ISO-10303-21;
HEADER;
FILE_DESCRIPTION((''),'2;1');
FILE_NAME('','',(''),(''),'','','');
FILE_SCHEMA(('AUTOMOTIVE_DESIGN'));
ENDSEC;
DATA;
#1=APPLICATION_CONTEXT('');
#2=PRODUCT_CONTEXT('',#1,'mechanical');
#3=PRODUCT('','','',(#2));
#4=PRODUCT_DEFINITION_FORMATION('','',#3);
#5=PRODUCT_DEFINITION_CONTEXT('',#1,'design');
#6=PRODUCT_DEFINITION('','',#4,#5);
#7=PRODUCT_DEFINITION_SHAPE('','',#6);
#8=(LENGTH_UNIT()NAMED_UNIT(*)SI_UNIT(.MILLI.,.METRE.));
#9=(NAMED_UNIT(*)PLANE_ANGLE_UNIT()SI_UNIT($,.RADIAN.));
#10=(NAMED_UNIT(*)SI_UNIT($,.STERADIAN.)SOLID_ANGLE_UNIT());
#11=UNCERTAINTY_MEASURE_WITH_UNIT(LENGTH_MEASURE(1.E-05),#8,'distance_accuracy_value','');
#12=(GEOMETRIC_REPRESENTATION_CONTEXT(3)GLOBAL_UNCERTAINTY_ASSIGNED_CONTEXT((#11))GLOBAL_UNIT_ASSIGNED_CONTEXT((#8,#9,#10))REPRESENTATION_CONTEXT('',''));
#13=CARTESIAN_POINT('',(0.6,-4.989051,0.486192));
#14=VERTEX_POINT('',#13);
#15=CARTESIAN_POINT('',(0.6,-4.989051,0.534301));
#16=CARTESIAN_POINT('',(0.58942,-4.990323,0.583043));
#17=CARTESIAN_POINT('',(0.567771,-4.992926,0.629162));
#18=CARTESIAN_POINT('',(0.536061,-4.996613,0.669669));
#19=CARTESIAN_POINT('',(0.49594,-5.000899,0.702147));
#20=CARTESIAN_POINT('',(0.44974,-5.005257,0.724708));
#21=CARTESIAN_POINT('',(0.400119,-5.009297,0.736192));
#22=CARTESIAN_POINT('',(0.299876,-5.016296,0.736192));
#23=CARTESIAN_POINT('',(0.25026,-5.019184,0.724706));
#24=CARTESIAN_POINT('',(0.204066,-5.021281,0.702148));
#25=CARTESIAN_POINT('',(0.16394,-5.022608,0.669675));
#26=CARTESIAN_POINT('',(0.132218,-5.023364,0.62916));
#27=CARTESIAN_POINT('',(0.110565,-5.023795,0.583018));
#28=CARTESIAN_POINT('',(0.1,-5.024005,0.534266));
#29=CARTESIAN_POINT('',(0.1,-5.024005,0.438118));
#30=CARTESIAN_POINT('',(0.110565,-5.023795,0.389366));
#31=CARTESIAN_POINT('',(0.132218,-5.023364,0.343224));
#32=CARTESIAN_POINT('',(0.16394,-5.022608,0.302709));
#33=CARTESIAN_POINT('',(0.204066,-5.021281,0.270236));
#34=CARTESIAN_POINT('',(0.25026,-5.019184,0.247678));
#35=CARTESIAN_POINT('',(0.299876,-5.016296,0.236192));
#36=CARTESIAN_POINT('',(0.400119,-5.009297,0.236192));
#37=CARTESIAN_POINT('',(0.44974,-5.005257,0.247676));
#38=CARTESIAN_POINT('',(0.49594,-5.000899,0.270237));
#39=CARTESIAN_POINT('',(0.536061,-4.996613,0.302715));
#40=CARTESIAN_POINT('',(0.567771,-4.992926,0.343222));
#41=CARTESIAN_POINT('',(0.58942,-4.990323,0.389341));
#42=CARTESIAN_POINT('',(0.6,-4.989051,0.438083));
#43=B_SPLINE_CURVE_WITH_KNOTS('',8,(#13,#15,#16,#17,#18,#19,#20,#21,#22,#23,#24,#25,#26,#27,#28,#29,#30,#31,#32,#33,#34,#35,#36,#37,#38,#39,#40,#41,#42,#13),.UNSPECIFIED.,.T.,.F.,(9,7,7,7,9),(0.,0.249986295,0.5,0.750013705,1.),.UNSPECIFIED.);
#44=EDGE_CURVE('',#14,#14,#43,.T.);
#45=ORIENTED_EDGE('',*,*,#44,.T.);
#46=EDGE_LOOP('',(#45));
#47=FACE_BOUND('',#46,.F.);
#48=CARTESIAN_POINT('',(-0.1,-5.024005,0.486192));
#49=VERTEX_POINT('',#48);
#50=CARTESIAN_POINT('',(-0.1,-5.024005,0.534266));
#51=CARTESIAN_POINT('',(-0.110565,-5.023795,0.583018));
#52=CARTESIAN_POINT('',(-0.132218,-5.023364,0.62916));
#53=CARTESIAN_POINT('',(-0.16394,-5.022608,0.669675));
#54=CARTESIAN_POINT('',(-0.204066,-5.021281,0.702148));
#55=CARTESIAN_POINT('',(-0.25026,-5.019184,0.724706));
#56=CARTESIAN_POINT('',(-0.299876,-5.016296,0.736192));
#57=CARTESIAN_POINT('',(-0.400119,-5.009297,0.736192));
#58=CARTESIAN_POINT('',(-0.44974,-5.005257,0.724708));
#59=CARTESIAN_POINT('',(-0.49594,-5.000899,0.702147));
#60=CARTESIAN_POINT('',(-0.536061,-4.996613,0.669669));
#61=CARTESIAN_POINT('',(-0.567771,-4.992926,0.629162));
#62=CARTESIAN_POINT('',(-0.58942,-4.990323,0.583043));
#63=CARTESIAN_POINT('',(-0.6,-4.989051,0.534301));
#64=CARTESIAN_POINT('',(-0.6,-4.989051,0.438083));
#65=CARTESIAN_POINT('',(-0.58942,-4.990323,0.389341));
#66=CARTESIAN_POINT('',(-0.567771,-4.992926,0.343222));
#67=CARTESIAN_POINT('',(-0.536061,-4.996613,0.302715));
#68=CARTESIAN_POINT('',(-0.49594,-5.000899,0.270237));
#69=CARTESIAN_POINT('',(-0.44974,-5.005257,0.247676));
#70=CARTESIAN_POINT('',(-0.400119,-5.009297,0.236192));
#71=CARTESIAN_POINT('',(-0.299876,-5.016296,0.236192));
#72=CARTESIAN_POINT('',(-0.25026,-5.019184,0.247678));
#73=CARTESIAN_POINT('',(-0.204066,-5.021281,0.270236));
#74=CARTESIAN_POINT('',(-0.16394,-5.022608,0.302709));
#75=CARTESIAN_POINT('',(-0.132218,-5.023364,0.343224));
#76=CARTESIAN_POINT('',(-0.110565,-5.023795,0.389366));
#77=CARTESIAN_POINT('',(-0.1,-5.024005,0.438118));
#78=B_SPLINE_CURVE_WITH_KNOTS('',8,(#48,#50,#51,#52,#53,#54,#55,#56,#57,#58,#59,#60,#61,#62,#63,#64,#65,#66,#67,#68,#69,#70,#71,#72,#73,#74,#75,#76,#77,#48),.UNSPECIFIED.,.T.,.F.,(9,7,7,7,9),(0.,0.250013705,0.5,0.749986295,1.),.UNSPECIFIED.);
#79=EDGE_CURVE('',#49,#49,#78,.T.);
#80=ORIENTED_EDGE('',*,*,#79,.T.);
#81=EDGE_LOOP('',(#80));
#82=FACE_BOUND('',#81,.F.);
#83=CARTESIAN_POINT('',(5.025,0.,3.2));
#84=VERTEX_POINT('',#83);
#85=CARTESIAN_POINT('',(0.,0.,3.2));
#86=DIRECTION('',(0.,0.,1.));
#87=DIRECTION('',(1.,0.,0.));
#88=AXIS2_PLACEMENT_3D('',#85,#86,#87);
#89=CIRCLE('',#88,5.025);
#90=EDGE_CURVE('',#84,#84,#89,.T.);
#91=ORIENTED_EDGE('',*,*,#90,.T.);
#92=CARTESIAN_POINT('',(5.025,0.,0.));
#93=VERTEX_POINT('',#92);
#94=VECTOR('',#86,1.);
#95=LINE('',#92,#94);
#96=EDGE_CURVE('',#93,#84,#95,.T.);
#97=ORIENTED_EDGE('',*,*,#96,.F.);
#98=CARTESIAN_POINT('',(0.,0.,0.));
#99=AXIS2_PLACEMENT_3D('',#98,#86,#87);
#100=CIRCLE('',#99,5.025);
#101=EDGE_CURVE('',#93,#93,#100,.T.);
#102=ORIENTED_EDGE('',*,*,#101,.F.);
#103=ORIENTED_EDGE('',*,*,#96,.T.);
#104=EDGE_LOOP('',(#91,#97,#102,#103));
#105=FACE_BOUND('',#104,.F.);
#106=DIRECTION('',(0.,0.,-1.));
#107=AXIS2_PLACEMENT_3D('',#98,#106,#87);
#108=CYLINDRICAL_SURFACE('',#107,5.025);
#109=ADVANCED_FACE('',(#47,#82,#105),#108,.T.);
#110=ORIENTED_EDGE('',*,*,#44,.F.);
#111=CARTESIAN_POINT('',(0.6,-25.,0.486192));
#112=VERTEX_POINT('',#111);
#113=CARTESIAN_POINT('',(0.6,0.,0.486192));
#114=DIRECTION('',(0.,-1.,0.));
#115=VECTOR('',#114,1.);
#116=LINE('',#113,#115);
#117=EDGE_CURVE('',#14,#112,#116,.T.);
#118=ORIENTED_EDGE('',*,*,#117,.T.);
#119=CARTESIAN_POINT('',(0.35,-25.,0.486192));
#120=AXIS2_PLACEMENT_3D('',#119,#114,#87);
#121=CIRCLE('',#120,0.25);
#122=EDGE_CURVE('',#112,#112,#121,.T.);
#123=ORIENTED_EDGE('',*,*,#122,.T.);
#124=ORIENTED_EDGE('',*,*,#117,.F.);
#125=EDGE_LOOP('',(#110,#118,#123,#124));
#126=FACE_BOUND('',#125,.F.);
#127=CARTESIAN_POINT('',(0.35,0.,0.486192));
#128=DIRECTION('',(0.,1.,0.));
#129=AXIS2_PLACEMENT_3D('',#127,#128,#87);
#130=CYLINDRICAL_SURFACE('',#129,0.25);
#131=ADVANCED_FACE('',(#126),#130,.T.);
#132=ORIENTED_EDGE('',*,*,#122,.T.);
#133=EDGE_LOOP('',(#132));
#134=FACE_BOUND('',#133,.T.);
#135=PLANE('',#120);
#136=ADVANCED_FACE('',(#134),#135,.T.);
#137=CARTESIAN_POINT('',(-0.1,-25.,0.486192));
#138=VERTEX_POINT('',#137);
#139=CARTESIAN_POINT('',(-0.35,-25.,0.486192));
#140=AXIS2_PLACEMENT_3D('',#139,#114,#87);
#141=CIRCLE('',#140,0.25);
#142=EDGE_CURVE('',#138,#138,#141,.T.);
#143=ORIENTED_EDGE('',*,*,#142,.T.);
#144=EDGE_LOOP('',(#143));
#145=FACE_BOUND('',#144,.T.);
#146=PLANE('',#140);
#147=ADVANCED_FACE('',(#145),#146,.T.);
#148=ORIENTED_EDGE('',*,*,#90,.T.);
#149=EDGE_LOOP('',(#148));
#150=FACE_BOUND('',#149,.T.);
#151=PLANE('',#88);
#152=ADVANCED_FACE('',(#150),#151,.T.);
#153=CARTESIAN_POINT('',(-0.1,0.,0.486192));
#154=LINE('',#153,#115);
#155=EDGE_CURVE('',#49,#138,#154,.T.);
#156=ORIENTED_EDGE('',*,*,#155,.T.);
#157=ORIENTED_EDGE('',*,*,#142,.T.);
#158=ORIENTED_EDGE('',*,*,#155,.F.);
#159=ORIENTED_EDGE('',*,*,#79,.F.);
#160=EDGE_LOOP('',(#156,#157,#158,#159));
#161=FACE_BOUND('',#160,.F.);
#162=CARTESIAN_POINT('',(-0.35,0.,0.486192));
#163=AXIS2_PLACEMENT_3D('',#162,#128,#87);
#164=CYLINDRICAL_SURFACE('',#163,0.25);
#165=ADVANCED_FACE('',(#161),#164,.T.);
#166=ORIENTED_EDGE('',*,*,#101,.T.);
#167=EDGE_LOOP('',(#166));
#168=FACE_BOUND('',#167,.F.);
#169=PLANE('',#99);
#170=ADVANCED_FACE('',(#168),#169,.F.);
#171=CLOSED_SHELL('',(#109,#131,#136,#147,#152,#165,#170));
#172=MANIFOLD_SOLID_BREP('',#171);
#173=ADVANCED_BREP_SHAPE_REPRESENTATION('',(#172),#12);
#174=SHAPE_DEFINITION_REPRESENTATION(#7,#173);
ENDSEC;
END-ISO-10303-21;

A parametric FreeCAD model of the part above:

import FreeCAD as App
import Part
import Sketcher

V = App.Vector
Q = App.Units.Quantity

doc = App.newDocument("Part")
params = doc.addObject("Spreadsheet::Sheet", "Params")
for row, (alias, value) in enumerate([
    ("sketch1_diameter", "10.05 mm"),
    ("pad1_length", "3.2 mm"),
    ("sketch2_diameter", "0.5 mm"),
    ("pad2_length", "25 mm"),
], start=1):
    params.set(f"A{row}", alias)
    params.set(f"B{row}", "=" + value)
    params.setAlias(f"B{row}", alias)

body = doc.addObject("PartDesign::Body", "Body")

# Sketch on XY plane
sketch1 = doc.addObject("Sketcher::SketchObject", "Sketch")
body.addObject(sketch1)
sketch1.AttachmentSupport = (doc.XY_Plane, [""])
sketch1.MapMode = "FlatFace"
sketch1.addGeometry(Part.Circle(V(0, 0, 0), V(0, 0, 1), 5), False)
sketch1.addConstraint(Sketcher.Constraint("Coincident", 0, 3, -1, 1))
sketch1.addConstraint(Sketcher.Constraint("Diameter", 0, Q("10.05 mm")))
sketch1.setExpression("Constraints[1]", "Params.sketch1_diameter")
pad1 = doc.addObject("PartDesign::Pad", "Pad")
body.addObject(pad1)
pad1.Profile = sketch1
pad1.setExpression("Length", "Params.pad1_length")

# Sketch on XZ plane
sketch2 = doc.addObject("Sketcher::SketchObject", "Sketch001")
body.addObject(sketch2)
sketch2.AttachmentSupport = (doc.XZ_Plane, [""])
sketch2.MapMode = "FlatFace"
sketch2.addGeometry(Part.Circle(V(-0.35, 0.49, 0), V(0, 0, 1), 0.25), False)
sketch2.addGeometry(Part.Circle(V(0.35, 0.49, 0), V(0, 0, 1), 0.25), False)
sketch2.addConstraint(Sketcher.Constraint("Equal", 0, 1))
sketch2.addConstraint(Sketcher.Constraint("Symmetric", 0, 3, 1, 3, -2))
sketch2.addConstraint(Sketcher.Constraint("Diameter", 0, Q("0.5 mm")))
sketch2.addConstraint(Sketcher.Constraint("DistanceX", 0, 3, 1, 3, Q("0.7 mm")))
sketch2.addConstraint(Sketcher.Constraint("DistanceY", -1, 1, 0, 3, Q("0.486192 mm")))
sketch2.setExpression("Constraints[2]", "Params.sketch2_diameter")
pad2 = doc.addObject("PartDesign::Pad", "Pad001")
body.addObject(pad2)
pad2.Profile = sketch2
pad2.setExpression("Length", "Params.pad2_length")

doc.recompute()
